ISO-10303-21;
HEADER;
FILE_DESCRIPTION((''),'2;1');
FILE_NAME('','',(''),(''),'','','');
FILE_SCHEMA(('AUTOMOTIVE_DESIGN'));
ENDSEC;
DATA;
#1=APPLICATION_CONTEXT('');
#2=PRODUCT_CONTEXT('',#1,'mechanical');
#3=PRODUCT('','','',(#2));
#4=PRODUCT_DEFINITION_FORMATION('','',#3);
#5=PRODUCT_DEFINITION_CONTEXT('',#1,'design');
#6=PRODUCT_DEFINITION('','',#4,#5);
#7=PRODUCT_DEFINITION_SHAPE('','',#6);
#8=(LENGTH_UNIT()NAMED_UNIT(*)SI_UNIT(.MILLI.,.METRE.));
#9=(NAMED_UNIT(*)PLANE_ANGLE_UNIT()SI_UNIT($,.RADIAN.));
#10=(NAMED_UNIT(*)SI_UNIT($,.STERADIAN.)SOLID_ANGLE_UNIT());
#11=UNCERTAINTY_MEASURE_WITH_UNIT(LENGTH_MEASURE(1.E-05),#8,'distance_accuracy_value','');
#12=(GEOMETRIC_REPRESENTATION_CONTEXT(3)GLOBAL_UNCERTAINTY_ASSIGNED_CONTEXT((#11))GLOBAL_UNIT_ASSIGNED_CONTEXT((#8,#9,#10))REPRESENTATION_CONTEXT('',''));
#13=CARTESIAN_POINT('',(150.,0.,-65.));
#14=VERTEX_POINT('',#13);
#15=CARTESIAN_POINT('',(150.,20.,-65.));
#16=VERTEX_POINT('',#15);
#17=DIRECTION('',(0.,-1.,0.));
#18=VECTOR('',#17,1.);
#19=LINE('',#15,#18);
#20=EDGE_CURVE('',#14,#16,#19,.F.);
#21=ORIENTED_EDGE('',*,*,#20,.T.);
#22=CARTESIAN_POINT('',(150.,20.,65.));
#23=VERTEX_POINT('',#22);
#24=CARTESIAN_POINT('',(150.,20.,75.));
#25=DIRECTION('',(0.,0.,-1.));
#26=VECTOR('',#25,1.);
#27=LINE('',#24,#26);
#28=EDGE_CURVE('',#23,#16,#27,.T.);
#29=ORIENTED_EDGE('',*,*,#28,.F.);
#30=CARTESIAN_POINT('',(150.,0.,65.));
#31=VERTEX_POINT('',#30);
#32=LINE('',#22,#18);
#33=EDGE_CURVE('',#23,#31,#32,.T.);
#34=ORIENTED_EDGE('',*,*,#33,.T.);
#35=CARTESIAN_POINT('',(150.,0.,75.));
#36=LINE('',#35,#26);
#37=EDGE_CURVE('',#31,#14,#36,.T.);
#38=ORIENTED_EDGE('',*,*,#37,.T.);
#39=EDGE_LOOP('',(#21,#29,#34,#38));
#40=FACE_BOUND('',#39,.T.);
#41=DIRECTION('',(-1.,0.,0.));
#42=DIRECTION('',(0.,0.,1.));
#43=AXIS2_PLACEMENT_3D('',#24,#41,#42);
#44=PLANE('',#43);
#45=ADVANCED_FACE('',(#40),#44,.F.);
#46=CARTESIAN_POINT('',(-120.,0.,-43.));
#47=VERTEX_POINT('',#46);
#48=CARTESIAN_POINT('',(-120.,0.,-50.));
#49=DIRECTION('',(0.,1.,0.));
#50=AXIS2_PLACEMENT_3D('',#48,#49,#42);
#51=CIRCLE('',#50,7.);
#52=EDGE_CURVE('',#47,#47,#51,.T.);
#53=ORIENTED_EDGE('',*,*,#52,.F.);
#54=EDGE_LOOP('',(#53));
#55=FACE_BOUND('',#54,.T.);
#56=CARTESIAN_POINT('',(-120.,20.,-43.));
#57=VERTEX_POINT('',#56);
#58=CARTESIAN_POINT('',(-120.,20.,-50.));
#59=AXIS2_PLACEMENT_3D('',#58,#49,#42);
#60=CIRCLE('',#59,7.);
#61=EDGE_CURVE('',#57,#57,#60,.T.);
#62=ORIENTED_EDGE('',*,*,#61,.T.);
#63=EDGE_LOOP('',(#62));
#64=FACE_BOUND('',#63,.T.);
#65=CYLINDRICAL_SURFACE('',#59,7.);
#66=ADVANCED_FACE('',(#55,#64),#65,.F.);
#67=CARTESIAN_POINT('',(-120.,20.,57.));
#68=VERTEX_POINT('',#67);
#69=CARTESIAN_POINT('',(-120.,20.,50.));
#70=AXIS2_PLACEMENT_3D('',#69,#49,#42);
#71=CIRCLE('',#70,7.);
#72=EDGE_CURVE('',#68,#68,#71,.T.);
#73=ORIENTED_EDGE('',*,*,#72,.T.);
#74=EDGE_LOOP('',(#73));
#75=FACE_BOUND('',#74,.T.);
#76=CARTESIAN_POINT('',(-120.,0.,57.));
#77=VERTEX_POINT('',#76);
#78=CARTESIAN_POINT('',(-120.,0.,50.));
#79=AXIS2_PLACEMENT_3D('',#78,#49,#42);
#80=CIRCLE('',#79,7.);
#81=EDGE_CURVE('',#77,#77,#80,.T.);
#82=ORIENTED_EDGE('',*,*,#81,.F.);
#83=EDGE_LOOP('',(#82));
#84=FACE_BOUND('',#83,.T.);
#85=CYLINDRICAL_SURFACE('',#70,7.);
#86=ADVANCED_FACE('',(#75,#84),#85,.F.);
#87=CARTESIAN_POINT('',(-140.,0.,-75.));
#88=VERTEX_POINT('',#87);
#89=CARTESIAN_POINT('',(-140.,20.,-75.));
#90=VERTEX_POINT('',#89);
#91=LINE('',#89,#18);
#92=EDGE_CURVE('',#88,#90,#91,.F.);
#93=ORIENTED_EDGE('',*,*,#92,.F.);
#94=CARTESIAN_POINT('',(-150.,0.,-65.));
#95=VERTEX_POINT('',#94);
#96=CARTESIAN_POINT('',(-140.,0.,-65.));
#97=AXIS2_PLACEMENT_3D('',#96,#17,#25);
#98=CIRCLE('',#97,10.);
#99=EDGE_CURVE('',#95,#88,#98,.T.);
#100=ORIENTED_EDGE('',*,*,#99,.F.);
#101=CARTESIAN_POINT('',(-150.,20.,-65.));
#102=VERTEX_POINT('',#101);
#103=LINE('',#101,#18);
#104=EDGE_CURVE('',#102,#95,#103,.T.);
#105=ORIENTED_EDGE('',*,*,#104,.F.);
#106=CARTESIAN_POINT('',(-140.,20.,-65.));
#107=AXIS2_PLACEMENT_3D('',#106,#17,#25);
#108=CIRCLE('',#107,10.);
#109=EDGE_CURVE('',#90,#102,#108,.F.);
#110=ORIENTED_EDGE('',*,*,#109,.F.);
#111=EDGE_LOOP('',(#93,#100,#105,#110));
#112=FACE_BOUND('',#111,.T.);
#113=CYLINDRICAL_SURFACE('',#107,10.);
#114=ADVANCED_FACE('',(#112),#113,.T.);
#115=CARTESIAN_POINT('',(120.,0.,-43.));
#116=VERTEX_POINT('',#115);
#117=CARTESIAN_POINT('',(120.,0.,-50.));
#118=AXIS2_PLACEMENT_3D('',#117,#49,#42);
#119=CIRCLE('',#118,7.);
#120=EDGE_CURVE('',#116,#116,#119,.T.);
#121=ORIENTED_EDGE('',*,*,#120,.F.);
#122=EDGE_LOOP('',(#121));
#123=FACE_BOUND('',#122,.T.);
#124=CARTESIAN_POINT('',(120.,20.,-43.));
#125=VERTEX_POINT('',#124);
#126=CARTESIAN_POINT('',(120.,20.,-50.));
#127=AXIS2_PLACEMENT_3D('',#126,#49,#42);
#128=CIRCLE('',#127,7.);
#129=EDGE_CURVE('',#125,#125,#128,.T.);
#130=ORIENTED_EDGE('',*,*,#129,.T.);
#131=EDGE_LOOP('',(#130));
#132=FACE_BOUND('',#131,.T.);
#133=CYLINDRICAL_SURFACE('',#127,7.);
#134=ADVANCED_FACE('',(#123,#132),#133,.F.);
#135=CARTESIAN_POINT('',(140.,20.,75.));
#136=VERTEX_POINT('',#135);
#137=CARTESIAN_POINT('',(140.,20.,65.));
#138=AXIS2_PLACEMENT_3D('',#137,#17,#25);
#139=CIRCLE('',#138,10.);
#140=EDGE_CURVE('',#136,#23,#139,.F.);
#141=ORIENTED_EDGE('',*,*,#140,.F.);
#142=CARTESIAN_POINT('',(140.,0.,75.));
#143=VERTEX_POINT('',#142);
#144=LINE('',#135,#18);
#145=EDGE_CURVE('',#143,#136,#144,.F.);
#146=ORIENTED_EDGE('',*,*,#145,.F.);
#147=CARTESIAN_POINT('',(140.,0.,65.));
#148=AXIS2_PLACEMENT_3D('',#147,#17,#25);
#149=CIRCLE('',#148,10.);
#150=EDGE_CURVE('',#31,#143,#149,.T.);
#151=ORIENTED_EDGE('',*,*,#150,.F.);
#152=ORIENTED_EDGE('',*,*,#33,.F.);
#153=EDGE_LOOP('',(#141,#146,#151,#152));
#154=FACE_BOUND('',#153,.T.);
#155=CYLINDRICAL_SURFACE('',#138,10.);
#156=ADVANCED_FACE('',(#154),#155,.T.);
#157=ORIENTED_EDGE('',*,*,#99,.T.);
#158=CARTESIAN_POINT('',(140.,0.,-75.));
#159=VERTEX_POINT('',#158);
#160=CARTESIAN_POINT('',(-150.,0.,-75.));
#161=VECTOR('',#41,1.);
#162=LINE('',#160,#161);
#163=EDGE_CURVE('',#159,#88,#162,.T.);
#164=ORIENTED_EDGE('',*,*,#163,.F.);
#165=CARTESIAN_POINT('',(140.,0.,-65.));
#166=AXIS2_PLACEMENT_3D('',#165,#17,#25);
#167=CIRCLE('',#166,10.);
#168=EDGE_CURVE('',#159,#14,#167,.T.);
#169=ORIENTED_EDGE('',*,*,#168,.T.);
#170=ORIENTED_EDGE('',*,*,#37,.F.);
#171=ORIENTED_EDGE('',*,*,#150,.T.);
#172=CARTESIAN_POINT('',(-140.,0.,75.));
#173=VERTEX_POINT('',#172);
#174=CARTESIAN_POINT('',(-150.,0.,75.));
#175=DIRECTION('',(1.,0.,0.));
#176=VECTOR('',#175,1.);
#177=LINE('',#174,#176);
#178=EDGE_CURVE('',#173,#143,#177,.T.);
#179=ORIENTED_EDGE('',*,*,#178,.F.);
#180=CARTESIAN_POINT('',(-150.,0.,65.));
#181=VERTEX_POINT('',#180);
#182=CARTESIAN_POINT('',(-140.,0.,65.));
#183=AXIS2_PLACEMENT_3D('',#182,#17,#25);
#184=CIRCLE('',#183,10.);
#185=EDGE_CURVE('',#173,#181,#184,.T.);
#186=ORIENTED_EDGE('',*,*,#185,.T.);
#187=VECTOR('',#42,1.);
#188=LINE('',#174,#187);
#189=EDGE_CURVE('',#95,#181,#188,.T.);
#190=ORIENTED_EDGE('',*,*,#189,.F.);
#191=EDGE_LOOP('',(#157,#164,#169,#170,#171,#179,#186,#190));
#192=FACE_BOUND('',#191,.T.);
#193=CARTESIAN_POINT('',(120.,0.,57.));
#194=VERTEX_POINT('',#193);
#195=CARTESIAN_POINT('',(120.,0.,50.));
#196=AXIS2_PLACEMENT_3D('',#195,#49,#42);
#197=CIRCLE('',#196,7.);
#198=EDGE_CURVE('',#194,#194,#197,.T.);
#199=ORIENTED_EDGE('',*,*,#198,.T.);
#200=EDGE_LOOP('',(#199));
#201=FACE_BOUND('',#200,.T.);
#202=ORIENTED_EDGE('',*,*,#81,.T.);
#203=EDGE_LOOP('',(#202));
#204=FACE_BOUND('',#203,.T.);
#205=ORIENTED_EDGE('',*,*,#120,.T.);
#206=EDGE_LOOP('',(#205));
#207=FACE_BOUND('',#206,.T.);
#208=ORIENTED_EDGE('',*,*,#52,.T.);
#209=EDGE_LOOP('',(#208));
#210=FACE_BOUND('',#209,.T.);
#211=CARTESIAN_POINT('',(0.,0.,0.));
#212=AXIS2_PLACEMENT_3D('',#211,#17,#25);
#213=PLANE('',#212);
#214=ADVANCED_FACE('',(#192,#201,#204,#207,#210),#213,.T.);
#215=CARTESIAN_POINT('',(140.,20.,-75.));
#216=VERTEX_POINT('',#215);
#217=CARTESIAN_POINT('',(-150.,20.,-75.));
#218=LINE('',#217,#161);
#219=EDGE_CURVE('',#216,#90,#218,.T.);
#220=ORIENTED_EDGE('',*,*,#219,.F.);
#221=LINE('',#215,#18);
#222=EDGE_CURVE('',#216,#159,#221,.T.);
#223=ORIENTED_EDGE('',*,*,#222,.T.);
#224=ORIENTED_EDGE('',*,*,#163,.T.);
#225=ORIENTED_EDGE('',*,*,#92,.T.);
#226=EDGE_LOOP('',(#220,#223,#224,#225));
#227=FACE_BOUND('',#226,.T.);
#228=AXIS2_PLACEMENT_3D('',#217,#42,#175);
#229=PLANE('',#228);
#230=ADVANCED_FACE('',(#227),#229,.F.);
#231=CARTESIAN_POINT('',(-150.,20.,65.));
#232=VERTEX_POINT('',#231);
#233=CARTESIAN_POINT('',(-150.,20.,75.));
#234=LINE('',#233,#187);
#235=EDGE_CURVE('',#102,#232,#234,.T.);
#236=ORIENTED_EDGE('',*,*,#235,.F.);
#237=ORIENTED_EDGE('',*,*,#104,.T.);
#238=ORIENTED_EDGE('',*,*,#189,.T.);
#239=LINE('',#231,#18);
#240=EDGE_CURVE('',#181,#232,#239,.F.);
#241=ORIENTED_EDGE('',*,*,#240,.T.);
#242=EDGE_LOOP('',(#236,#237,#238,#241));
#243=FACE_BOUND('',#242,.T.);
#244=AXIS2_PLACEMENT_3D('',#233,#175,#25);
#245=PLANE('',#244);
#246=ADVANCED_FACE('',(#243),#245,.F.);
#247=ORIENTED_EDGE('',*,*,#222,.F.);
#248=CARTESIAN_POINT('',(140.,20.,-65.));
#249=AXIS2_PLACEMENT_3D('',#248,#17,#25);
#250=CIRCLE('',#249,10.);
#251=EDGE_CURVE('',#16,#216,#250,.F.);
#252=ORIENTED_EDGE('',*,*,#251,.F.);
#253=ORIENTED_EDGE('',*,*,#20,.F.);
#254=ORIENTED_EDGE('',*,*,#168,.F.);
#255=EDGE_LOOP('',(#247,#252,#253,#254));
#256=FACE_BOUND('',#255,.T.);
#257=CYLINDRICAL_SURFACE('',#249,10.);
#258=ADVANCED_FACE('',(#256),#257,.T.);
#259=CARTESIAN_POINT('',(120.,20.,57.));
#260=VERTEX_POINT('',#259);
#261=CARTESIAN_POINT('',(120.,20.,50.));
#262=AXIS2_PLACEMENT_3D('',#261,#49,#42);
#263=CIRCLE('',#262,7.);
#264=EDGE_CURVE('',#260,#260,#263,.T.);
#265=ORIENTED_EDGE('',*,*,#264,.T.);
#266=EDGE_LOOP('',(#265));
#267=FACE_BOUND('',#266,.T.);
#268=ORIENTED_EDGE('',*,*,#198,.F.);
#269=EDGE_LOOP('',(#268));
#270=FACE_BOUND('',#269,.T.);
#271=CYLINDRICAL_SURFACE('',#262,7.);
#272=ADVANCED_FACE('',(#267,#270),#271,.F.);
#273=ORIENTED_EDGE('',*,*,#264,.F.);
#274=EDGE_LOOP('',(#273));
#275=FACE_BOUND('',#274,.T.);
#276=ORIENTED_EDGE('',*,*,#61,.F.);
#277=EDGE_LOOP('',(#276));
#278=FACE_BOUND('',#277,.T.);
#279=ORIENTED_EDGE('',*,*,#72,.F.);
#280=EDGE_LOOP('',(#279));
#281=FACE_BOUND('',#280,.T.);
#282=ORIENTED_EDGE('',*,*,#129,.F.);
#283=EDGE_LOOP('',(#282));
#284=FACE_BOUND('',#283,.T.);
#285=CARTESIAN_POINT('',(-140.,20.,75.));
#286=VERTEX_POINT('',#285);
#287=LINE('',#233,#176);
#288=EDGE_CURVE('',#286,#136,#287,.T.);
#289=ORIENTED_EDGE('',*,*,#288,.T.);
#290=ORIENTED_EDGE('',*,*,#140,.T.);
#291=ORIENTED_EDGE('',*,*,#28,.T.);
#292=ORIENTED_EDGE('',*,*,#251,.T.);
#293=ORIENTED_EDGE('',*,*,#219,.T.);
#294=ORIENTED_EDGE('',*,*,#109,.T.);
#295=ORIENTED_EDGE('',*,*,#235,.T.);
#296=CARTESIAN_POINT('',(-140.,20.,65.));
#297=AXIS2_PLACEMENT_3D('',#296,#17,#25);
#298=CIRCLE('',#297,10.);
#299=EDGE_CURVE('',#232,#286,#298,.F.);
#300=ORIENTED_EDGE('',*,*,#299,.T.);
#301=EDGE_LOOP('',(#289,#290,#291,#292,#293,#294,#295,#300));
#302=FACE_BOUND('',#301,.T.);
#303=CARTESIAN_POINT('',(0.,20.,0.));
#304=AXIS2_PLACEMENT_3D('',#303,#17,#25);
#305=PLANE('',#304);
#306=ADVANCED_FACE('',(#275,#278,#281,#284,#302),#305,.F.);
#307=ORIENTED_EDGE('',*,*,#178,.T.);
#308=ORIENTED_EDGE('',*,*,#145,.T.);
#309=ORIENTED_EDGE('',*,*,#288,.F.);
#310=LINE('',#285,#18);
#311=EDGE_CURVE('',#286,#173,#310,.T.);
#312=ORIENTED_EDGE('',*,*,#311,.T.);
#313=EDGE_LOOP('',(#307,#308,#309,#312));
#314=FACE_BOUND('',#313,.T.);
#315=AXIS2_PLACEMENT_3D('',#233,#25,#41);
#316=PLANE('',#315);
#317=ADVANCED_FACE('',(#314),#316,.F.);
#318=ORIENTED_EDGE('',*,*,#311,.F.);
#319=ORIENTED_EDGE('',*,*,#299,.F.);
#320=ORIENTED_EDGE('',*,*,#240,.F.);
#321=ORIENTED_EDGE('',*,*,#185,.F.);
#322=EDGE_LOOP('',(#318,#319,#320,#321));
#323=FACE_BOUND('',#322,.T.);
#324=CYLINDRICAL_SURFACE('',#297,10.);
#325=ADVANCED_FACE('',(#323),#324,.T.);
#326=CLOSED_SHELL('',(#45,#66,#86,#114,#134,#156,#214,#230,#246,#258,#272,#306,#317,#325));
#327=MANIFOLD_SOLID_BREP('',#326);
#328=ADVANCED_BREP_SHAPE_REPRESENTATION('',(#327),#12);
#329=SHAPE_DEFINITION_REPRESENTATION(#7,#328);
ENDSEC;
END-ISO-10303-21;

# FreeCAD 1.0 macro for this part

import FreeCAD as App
import Part
import Sketcher

V = App.Vector
Q = App.Units.Quantity


def edges_at(feature, points):
    """Names of the edges that pass closest to the given points."""
    edges = feature.Shape.Edges
    near = lambda p: min(range(len(edges)), key=lambda i: edges[i].distToShape(Part.Vertex(*p))[0])
    return sorted({f"Edge{near(p) + 1}" for p in points})

doc = App.newDocument("Part")
params = doc.addObject("Spreadsheet::Sheet", "Params")
for row, (alias, value) in enumerate([
    ("sketch1_width", "300 mm"),
    ("sketch1_height", "150 mm"),
    ("pad1_length", "20 mm"),
    ("fillet_radius", "10 mm"),
    ("sketch2_diameter", "14 mm"),
    ("hole_diameter", "14 mm"),
], start=1):
    params.set(f"A{row}", alias)
    params.set(f"B{row}", "=" + value)
    params.setAlias(f"B{row}", alias)

body = doc.addObject("PartDesign::Body", "Body")

# Sketch on XZ plane
sketch1 = body.newObject("Sketcher::SketchObject", "Sketch")
sketch1.AttachmentSupport = (doc.getObject("XZ_Plane"), [""])
sketch1.MapMode = "FlatFace"
sketch1.addGeometry(Part.LineSegment(V(-150, -75, 0), V(-150, 75, 0)), False)
sketch1.addGeometry(Part.LineSegment(V(-150, 75, 0), V(150, 75, 0)), False)
sketch1.addGeometry(Part.LineSegment(V(150, 75, 0), V(150, -75, 0)), False)
sketch1.addGeometry(Part.LineSegment(V(150, -75, 0), V(-150, -75, 0)), False)
sketch1.addConstraint(Sketcher.Constraint("Coincident", 0, 2, 1, 1))
sketch1.addConstraint(Sketcher.Constraint("Coincident", 1, 2, 2, 1))
sketch1.addConstraint(Sketcher.Constraint("Coincident", 2, 2, 3, 1))
sketch1.addConstraint(Sketcher.Constraint("Coincident", 3, 2, 0, 1))
sketch1.addConstraint(Sketcher.Constraint("Vertical", 0))
sketch1.addConstraint(Sketcher.Constraint("Horizontal", 1))
sketch1.addConstraint(Sketcher.Constraint("Vertical", 2))
sketch1.addConstraint(Sketcher.Constraint("Horizontal", 3))
sketch1.addConstraint(Sketcher.Constraint("Symmetric", 0, 2, 2, 2, -1, 1))
sketch1.addConstraint(Sketcher.Constraint("DistanceX", 1, 1, 1, 2, Q("300 mm")))
sketch1.addConstraint(Sketcher.Constraint("DistanceY", 0, 1, 0, 2, Q("150 mm")))
sketch1.setExpression("Constraints[9]", "Params.sketch1_width")
sketch1.setExpression("Constraints[10]", "Params.sketch1_height")
pad1 = body.newObject("PartDesign::Pad", "Pad")
pad1.Profile = sketch1
pad1.setExpression("Length", "Params.pad1_length")
pad1.Reversed = True
doc.recompute()

fillet = body.newObject("PartDesign::Fillet", "Fillet")
fillet.Base = (pad1, edges_at(pad1, [
    (150, 10, 75),
    (-150, 10, 75),
    (-150, 10, -75),
    (150, 10, -75),
]))
fillet.setExpression("Radius", "Params.fillet_radius")

# Sketch on XZ plane
sketch2 = body.newObject("Sketcher::SketchObject", "Sketch001")
sketch2.AttachmentSupport = (doc.getObject("XZ_Plane"), [""])
sketch2.MapMode = "FlatFace"
sketch2.AttachmentOffset = App.Placement(V(0, 0, -20), App.Rotation())
sketch2.addGeometry(Part.Circle(V(-120, -50, 0), V(0, 0, 1), 7), False)
sketch2.addGeometry(Part.Circle(V(120, -50, 0), V(0, 0, 1), 7), False)
sketch2.addGeometry(Part.Circle(V(120, 50, 0), V(0, 0, 1), 7), False)
sketch2.addGeometry(Part.Circle(V(-120, 50, 0), V(0, 0, 1), 7), False)
sketch2.addConstraint(Sketcher.Constraint("Equal", 0, 1))
sketch2.addConstraint(Sketcher.Constraint("Equal", 1, 2))
sketch2.addConstraint(Sketcher.Constraint("Equal", 2, 3))
sketch2.addConstraint(Sketcher.Constraint("Symmetric", 0, 3, 2, 3, -1, 1))
sketch2.addConstraint(Sketcher.Constraint("Symmetric", 1, 3, 3, 3, -1, 1))
sketch2.addConstraint(Sketcher.Constraint("Symmetric", 0, 3, 1, 3, -2))
sketch2.addConstraint(Sketcher.Constraint("Diameter", 0, Q("14 mm")))
sketch2.addConstraint(Sketcher.Constraint("DistanceX", 0, 3, -1, 1, Q("120 mm")))
sketch2.addConstraint(Sketcher.Constraint("DistanceY", 0, 3, -1, 1, Q("50 mm")))
sketch2.setExpression("Constraints[6]", "Params.sketch2_diameter")
doc.recompute()
hole = body.newObject("PartDesign::Hole", "Hole")
hole.Profile = sketch2
hole.ThreadType = "None"
hole.setExpression("Diameter", "Params.hole_diameter")
hole.DepthType = "ThroughAll"
hole.Reversed = True

doc.recompute()
